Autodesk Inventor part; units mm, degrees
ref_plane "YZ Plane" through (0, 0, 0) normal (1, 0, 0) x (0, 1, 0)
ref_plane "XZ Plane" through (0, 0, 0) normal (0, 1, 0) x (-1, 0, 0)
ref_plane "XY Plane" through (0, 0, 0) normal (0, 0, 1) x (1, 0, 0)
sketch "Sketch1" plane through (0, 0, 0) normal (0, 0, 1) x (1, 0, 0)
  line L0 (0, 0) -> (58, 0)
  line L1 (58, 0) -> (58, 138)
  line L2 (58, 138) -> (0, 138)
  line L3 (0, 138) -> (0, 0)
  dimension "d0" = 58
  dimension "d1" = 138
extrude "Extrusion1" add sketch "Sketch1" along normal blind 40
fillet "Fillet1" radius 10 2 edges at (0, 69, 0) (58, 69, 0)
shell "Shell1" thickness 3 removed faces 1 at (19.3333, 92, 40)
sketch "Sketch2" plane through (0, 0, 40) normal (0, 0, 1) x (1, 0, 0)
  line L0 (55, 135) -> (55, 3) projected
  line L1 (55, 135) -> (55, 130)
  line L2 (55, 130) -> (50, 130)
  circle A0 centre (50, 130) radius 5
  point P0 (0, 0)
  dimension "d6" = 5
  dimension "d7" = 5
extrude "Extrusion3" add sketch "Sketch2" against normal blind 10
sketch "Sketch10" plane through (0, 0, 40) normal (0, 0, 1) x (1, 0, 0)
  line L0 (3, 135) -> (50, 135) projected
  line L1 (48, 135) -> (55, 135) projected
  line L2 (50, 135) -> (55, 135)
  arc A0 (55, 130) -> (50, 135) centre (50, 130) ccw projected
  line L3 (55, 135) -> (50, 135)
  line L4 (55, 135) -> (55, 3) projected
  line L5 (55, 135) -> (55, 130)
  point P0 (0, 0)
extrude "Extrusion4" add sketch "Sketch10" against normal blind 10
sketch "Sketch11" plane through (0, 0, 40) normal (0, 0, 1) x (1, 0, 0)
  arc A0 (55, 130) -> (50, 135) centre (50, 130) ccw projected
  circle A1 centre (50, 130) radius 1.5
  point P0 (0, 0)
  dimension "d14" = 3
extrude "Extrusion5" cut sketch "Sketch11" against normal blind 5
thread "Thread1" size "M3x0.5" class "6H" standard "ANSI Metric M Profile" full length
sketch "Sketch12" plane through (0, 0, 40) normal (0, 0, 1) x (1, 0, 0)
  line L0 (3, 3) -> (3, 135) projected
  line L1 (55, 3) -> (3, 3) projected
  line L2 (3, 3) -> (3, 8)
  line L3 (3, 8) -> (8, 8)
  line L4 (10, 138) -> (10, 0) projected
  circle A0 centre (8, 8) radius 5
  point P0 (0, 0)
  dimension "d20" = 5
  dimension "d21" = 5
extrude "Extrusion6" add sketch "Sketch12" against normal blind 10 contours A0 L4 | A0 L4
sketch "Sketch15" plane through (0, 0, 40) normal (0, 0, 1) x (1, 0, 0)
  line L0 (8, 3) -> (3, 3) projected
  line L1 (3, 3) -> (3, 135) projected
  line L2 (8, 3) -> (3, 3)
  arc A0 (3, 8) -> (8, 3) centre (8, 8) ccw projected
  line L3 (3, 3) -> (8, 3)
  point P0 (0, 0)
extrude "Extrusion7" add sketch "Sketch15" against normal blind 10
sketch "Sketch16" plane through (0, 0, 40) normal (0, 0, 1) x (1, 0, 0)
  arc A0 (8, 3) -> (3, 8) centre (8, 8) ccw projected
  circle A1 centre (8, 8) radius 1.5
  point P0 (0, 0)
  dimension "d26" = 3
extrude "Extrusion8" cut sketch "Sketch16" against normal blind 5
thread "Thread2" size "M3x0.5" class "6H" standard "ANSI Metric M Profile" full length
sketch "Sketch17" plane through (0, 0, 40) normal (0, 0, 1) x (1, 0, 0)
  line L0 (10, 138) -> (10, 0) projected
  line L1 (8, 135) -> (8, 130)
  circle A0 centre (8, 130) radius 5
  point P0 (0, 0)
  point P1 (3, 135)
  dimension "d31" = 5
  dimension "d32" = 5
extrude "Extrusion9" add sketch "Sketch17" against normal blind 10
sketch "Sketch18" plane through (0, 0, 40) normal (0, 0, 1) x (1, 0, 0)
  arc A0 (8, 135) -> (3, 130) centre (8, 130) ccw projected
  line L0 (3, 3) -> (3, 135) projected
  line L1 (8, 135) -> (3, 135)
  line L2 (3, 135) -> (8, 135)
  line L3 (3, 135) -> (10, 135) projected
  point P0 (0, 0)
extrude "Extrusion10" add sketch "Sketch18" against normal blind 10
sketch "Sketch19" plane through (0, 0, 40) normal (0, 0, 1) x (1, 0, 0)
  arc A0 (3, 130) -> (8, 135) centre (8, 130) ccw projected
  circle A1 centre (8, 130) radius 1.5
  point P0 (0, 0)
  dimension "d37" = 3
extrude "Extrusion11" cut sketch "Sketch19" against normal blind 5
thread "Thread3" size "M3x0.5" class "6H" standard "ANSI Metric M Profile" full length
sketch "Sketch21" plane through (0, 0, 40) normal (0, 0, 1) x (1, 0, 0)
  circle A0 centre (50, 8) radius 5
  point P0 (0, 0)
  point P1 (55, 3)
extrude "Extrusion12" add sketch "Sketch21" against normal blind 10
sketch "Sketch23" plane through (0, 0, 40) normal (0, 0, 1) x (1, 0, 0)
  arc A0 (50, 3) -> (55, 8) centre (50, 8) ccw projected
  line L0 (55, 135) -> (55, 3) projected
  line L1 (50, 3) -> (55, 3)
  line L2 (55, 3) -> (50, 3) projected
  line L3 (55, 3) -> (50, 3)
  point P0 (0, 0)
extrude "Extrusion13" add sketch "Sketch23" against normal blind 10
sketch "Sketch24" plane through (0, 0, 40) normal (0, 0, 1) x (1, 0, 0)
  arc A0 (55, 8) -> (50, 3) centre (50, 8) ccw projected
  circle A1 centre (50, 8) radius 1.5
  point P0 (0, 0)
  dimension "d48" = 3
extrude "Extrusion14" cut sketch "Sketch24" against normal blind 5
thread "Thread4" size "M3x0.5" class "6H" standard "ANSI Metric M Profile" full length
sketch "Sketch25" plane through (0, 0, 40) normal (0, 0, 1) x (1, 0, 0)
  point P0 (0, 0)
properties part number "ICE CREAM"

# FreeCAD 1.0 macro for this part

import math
import FreeCAD as App
import Part
import Sketcher

V = App.Vector


def edges_at(feature, points):
    """Names of the edges that pass closest to the given points."""
    edges = feature.Shape.Edges
    near = lambda p: min(range(len(edges)), key=lambda i: edges[i].distToShape(Part.Vertex(*p))[0])
    return sorted({f"Edge{near(p) + 1}" for p in points})


def faces_at(feature, points):
    """Names of the faces that lie closest to the given points."""
    faces = feature.Shape.Faces
    near = lambda p: min(range(len(faces)), key=lambda i: faces[i].distToShape(Part.Vertex(*p))[0])
    return sorted({f"Face{near(p) + 1}" for p in points})

doc = App.newDocument("Part")
body = doc.addObject("PartDesign::Body", "Body")
body.AllowCompound = True

# Sketch on XY plane
sketch1 = doc.addObject("Sketcher::SketchObject", "Sketch")
body.addObject(sketch1)
sketch1.AttachmentSupport = (doc.XY_Plane, [""])
sketch1.MapMode = "FlatFace"
sketch1.addGeometry([
    Part.LineSegment(V(0, 138, 0), V(0, 0, 0)),
    Part.LineSegment(V(0, 0, 0), V(58, 0, 0)),
    Part.LineSegment(V(58, 0, 0), V(58, 138, 0)),
    Part.LineSegment(V(58, 138, 0), V(0, 138, 0)),
], False)
sketch1.addConstraint([
    Sketcher.Constraint("Coincident", 0, 2, 1, 1),
    Sketcher.Constraint("Coincident", 1, 2, 2, 1),
    Sketcher.Constraint("Coincident", 2, 2, 3, 1),
    Sketcher.Constraint("Coincident", 3, 2, 0, 1),
    Sketcher.Constraint("Vertical", 0),
    Sketcher.Constraint("Horizontal", 1),
    Sketcher.Constraint("Vertical", 2),
    Sketcher.Constraint("Horizontal", 3),
    Sketcher.Constraint("Coincident", 0, 2, -1, 1),
    Sketcher.Constraint("DistanceX", 1, 1, 1, 2, 58.0),
    Sketcher.Constraint("DistanceY", 0, 2, 0, 1, 138.0),
])
pad1 = doc.addObject("PartDesign::Pad", "Pad")
body.addObject(pad1)
pad1.Profile = sketch1
pad1.Length = 40
doc.recompute()

fillet = doc.addObject("PartDesign::Fillet", "Fillet")
body.addObject(fillet)
fillet.Base = (pad1, edges_at(pad1, [(0, 69, 0), (58, 69, 0)]))
fillet.Radius = 10
doc.recompute()

thickness = doc.addObject("PartDesign::Thickness", "Thickness")
body.addObject(thickness)
thickness.Base = (fillet, faces_at(fillet, [(19.333, 92, 40)]))
thickness.Value = 3
thickness.Reversed = True
thickness.Join = "Intersection"

# Sketch on XY plane
sketch2 = doc.addObject("Sketcher::SketchObject", "Sketch001")
body.addObject(sketch2)
sketch2.AttachmentSupport = (doc.XY_Plane, [""])
sketch2.MapMode = "FlatFace"
sketch2.AttachmentOffset = App.Placement(V(0, 0, 40), App.Rotation())
sketch2.addGeometry(Part.Circle(V(50, 130, 0), V(0, 0, 1), 5), False)
sketch2.addConstraint([
    Sketcher.Constraint("Diameter", 0, 10.0),
    Sketcher.Constraint("DistanceX", -1, 1, 0, 3, 50.0),
    Sketcher.Constraint("DistanceY", -1, 1, 0, 3, 130.0),
])
pad2 = doc.addObject("PartDesign::Pad", "Pad001")
body.addObject(pad2)
pad2.Profile = sketch2
pad2.Length = 10
pad2.Reversed = True

# Sketch on XY plane
sketch3 = doc.addObject("Sketcher::SketchObject", "Sketch002")
body.addObject(sketch3)
sketch3.AttachmentSupport = (doc.XY_Plane, [""])
sketch3.MapMode = "FlatFace"
sketch3.AttachmentOffset = App.Placement(V(0, 0, 40), App.Rotation())
sketch3.addGeometry([
    Part.LineSegment(V(55, 135, 0), V(50, 135, 0)),
    Part.ArcOfCircle(Part.Circle(V(50, 130, 0), V(0, 0, 1), 5), math.radians(0), math.radians(90)),
    Part.LineSegment(V(55, 130, 0), V(55, 135, 0)),
], False)
sketch3.addConstraint([
    Sketcher.Constraint("Tangent", 0, 2, 1, 2),
    Sketcher.Constraint("Tangent", 1, 1, 2, 1),
    Sketcher.Constraint("Coincident", 2, 2, 0, 1),
    Sketcher.Constraint("Horizontal", 0),
    Sketcher.Constraint("Vertical", 2),
    Sketcher.Constraint("Radius", 1, 5.0),
    Sketcher.Constraint("DistanceX", -1, 1, 1, 3, 50.0),
    Sketcher.Constraint("DistanceY", -1, 1, 1, 3, 130.0),
])
pad3 = doc.addObject("PartDesign::Pad", "Pad002")
body.addObject(pad3)
pad3.Profile = sketch3
pad3.Length = 10
pad3.Reversed = True

# Sketch on XY plane
sketch4 = doc.addObject("Sketcher::SketchObject", "Sketch003")
body.addObject(sketch4)
sketch4.AttachmentSupport = (doc.XY_Plane, [""])
sketch4.MapMode = "FlatFace"
sketch4.AttachmentOffset = App.Placement(V(0, 0, 40), App.Rotation())
sketch4.addGeometry(Part.Circle(V(50, 130, 0), V(0, 0, 1), 1.5), False)
sketch4.addConstraint([
    Sketcher.Constraint("Diameter", 0, 3.0),
    Sketcher.Constraint("DistanceX", -1, 1, 0, 3, 50.0),
    Sketcher.Constraint("DistanceY", -1, 1, 0, 3, 130.0),
])
pocket1 = doc.addObject("PartDesign::Pocket", "Pocket")
body.addObject(pocket1)
pocket1.Profile = sketch4
pocket1.Length = 5

# Sketch on XY plane
sketch5 = doc.addObject("Sketcher::SketchObject", "Sketch004")
body.addObject(sketch5)
sketch5.AttachmentSupport = (doc.XY_Plane, [""])
sketch5.MapMode = "FlatFace"
sketch5.AttachmentOffset = App.Placement(V(0, 0, 40), App.Rotation())
sketch5.addGeometry(Part.Circle(V(8, 8, 0), V(0, 0, 1), 5), False)
sketch5.addConstraint([
    Sketcher.Constraint("Diameter", 0, 10.0),
    Sketcher.Constraint("DistanceX", -1, 1, 0, 3, 8.0),
    Sketcher.Constraint("DistanceY", -1, 1, 0, 3, 8.0),
])
pad4 = doc.addObject("PartDesign::Pad", "Pad003")
body.addObject(pad4)
pad4.Profile = sketch5
pad4.Length = 10
pad4.Reversed = True

# Sketch on XY plane
sketch6 = doc.addObject("Sketcher::SketchObject", "Sketch005")
body.addObject(sketch6)
sketch6.AttachmentSupport = (doc.XY_Plane, [""])
sketch6.MapMode = "FlatFace"
sketch6.AttachmentOffset = App.Placement(V(0, 0, 40), App.Rotation())
sketch6.addGeometry([
    Part.LineSegment(V(3, 3, 0), V(8, 3, 0)),
    Part.ArcOfCircle(Part.Circle(V(8, 8, 0), V(0, 0, 1), 5), math.radians(180), math.radians(270)),
    Part.LineSegment(V(3, 8, 0), V(3, 3, 0)),
], False)
sketch6.addConstraint([
    Sketcher.Constraint("Tangent", 0, 2, 1, 2),
    Sketcher.Constraint("Tangent", 1, 1, 2, 1),
    Sketcher.Constraint("Coincident", 2, 2, 0, 1),
    Sketcher.Constraint("Horizontal", 0),
    Sketcher.Constraint("Vertical", 2),
    Sketcher.Constraint("Radius", 1, 5.0),
    Sketcher.Constraint("DistanceX", -1, 1, 1, 3, 8.0),
    Sketcher.Constraint("DistanceY", -1, 1, 1, 3, 8.0),
])
pad5 = doc.addObject("PartDesign::Pad", "Pad004")
body.addObject(pad5)
pad5.Profile = sketch6
pad5.Length = 10
pad5.Reversed = True

# Sketch on XY plane
sketch7 = doc.addObject("Sketcher::SketchObject", "Sketch006")
body.addObject(sketch7)
sketch7.AttachmentSupport = (doc.XY_Plane, [""])
sketch7.MapMode = "FlatFace"
sketch7.AttachmentOffset = App.Placement(V(0, 0, 40), App.Rotation())
sketch7.addGeometry(Part.Circle(V(8, 8, 0), V(0, 0, 1), 1.5), False)
sketch7.addConstraint([
    Sketcher.Constraint("Diameter", 0, 3.0),
    Sketcher.Constraint("DistanceX", -1, 1, 0, 3, 8.0),
    Sketcher.Constraint("DistanceY", -1, 1, 0, 3, 8.0),
])
pocket2 = doc.addObject("PartDesign::Pocket", "Pocket001")
body.addObject(pocket2)
pocket2.Profile = sketch7
pocket2.Length = 5

# Sketch on XY plane
sketch8 = doc.addObject("Sketcher::SketchObject", "Sketch007")
body.addObject(sketch8)
sketch8.AttachmentSupport = (doc.XY_Plane, [""])
sketch8.MapMode = "FlatFace"
sketch8.AttachmentOffset = App.Placement(V(0, 0, 40), App.Rotation())
sketch8.addGeometry(Part.Circle(V(8, 130, 0), V(0, 0, 1), 5), False)
sketch8.addConstraint([
    Sketcher.Constraint("Diameter", 0, 10.0),
    Sketcher.Constraint("DistanceX", -1, 1, 0, 3, 8.0),
    Sketcher.Constraint("DistanceY", -1, 1, 0, 3, 130.0),
])
pad6 = doc.addObject("PartDesign::Pad", "Pad005")
body.addObject(pad6)
pad6.Profile = sketch8
pad6.Length = 10
pad6.Reversed = True

# Sketch on XY plane
sketch9 = doc.addObject("Sketcher::SketchObject", "Sketch008")
body.addObject(sketch9)
sketch9.AttachmentSupport = (doc.XY_Plane, [""])
sketch9.MapMode = "FlatFace"
sketch9.AttachmentOffset = App.Placement(V(0, 0, 40), App.Rotation())
sketch9.addGeometry([
    Part.ArcOfCircle(Part.Circle(V(8, 130, 0), V(0, 0, 1), 5), math.radians(90), math.radians(180)),
    Part.LineSegment(V(8, 135, 0), V(3, 135, 0)),
    Part.LineSegment(V(3, 135, 0), V(3, 130, 0)),
], False)
sketch9.addConstraint([
    Sketcher.Constraint("Tangent", 0, 1, 1, 1),
    Sketcher.Constraint("Coincident", 1, 2, 2, 1),
    Sketcher.Constraint("Tangent", 2, 2, 0, 2),
    Sketcher.Constraint("Horizontal", 1),
    Sketcher.Constraint("Vertical", 2),
    Sketcher.Constraint("Radius", 0, 5.0),
    Sketcher.Constraint("DistanceX", -1, 1, 0, 3, 8.0),
    Sketcher.Constraint("DistanceY", -1, 1, 0, 3, 130.0),
])
pad7 = doc.addObject("PartDesign::Pad", "Pad006")
body.addObject(pad7)
pad7.Profile = sketch9
pad7.Length = 10
pad7.Reversed = True

# Sketch on XY plane
sketch10 = doc.addObject("Sketcher::SketchObject", "Sketch009")
body.addObject(sketch10)
sketch10.AttachmentSupport = (doc.XY_Plane, [""])
sketch10.MapMode = "FlatFace"
sketch10.AttachmentOffset = App.Placement(V(0, 0, 40), App.Rotation())
sketch10.addGeometry(Part.Circle(V(8, 130, 0), V(0, 0, 1), 1.5), False)
sketch10.addConstraint([
    Sketcher.Constraint("Diameter", 0, 3.0),
    Sketcher.Constraint("DistanceX", -1, 1, 0, 3, 8.0),
    Sketcher.Constraint("DistanceY", -1, 1, 0, 3, 130.0),
])
pocket3 = doc.addObject("PartDesign::Pocket", "Pocket002")
body.addObject(pocket3)
pocket3.Profile = sketch10
pocket3.Length = 5

# Sketch on XY plane
sketch11 = doc.addObject("Sketcher::SketchObject", "Sketch010")
body.addObject(sketch11)
sketch11.AttachmentSupport = (doc.XY_Plane, [""])
sketch11.MapMode = "FlatFace"
sketch11.AttachmentOffset = App.Placement(V(0, 0, 40), App.Rotation())
sketch11.addGeometry(Part.Circle(V(50, 8, 0), V(0, 0, 1), 5), False)
sketch11.addConstraint([
    Sketcher.Constraint("Diameter", 0, 10.0),
    Sketcher.Constraint("DistanceX", -1, 1, 0, 3, 50.0),
    Sketcher.Constraint("DistanceY", -1, 1, 0, 3, 8.0),
])
pad8 = doc.addObject("PartDesign::Pad", "Pad007")
body.addObject(pad8)
pad8.Profile = sketch11
pad8.Length = 10
pad8.Reversed = True

# Sketch on XY plane
sketch12 = doc.addObject("Sketcher::SketchObject", "Sketch011")
body.addObject(sketch12)
sketch12.AttachmentSupport = (doc.XY_Plane, [""])
sketch12.MapMode = "FlatFace"
sketch12.AttachmentOffset = App.Placement(V(0, 0, 40), App.Rotation())
sketch12.addGeometry([
    Part.ArcOfCircle(Part.Circle(V(50, 8, 0), V(0, 0, 1), 5), math.radians(-90), math.radians(0)),
    Part.LineSegment(V(50, 3, 0), V(55, 3, 0)),
    Part.LineSegment(V(55, 3, 0), V(55, 8, 0)),
], False)
sketch12.addConstraint([
    Sketcher.Constraint("Tangent", 0, 1, 1, 1),
    Sketcher.Constraint("Coincident", 1, 2, 2, 1),
    Sketcher.Constraint("Tangent", 2, 2, 0, 2),
    Sketcher.Constraint("Horizontal", 1),
    Sketcher.Constraint("Vertical", 2),
    Sketcher.Constraint("Radius", 0, 5.0),
    Sketcher.Constraint("DistanceX", -1, 1, 0, 3, 50.0),
    Sketcher.Constraint("DistanceY", -1, 1, 0, 3, 8.0),
])
pad9 = doc.addObject("PartDesign::Pad", "Pad008")
body.addObject(pad9)
pad9.Profile = sketch12
pad9.Length = 10
pad9.Reversed = True

# Sketch on XY plane
sketch13 = doc.addObject("Sketcher::SketchObject", "Sketch012")
body.addObject(sketch13)
sketch13.AttachmentSupport = (doc.XY_Plane, [""])
sketch13.MapMode = "FlatFace"
sketch13.AttachmentOffset = App.Placement(V(0, 0, 40), App.Rotation())
sketch13.addGeometry(Part.Circle(V(50, 8, 0), V(0, 0, 1), 1.5), False)
sketch13.addConstraint([
    Sketcher.Constraint("Diameter", 0, 3.0),
    Sketcher.Constraint("DistanceX", -1, 1, 0, 3, 50.0),
    Sketcher.Constraint("DistanceY", -1, 1, 0, 3, 8.0),
])
pocket4 = doc.addObject("PartDesign::Pocket", "Pocket003")
body.addObject(pocket4)
pocket4.Profile = sketch13
pocket4.Length = 5

doc.recompute()
